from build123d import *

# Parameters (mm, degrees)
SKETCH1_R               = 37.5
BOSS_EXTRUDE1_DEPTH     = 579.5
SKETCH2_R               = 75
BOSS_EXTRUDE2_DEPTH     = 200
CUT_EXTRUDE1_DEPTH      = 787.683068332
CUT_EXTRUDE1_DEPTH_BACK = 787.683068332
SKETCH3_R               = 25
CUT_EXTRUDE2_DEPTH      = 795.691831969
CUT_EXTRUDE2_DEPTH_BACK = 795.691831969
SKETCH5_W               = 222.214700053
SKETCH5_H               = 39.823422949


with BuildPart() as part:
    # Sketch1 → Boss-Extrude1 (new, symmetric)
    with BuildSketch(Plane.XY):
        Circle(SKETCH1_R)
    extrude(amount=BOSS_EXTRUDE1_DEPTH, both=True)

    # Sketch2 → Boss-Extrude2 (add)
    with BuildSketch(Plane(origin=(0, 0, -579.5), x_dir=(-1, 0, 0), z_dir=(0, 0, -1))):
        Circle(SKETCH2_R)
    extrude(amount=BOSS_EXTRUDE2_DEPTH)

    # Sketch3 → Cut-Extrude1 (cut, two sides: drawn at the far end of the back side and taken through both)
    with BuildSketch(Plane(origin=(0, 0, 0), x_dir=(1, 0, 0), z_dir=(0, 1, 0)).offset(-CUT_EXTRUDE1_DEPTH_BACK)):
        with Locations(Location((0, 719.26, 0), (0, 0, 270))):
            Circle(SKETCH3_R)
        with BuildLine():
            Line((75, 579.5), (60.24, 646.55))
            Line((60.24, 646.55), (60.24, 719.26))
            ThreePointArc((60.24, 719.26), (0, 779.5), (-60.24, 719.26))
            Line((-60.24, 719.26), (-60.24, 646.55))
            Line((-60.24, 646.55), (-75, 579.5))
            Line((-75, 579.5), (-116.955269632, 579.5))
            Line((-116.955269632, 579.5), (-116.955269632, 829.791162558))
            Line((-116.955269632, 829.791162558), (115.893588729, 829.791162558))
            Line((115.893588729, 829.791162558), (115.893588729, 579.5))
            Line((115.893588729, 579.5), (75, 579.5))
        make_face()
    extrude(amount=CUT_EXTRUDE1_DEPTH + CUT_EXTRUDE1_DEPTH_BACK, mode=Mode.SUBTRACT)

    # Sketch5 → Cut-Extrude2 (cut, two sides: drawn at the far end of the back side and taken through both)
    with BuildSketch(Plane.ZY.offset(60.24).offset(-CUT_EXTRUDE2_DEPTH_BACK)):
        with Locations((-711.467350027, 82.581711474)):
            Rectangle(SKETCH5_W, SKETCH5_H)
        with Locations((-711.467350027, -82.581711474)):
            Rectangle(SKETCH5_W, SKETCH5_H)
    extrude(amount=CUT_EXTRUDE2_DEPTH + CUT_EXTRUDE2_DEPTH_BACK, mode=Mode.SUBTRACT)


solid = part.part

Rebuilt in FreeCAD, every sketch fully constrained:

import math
import FreeCAD as App
import Part
import Sketcher

V = App.Vector


def add_polygon(sketch, points):
    """Adds a closed chain of lines whose ends are joined by coincident constraints."""
    first, n = sketch.GeometryCount, len(points)
    for a, b in zip(points, points[1:] + points[:1]):
        sketch.addGeometry(Part.LineSegment(App.Vector(*a, 0), App.Vector(*b, 0)), False)
    for i in range(n):
        sketch.addConstraint(Sketcher.Constraint("Coincident", first + i, 2, first + (i + 1) % n, 1))

doc = App.newDocument("Part")
body = doc.addObject("PartDesign::Body", "Body")

# Sketch on XY plane
sketch1 = doc.addObject("Sketcher::SketchObject", "Sketch")
body.addObject(sketch1)
sketch1.AttachmentSupport = (doc.XY_Plane, [""])
sketch1.MapMode = "FlatFace"
sketch1.addGeometry(Part.Circle(V(0, 0, 0), V(0, 0, 1), 38), False)
sketch1.addConstraint([
    Sketcher.Constraint("Coincident", 0, 3, -1, 1),
    Sketcher.Constraint("Diameter", 0, 75.0),
])
pad1 = doc.addObject("PartDesign::Pad", "Pad")
body.addObject(pad1)
pad1.Profile = sketch1
pad1.Length = 1159
pad1.Midplane = True

# Sketch on XY plane
sketch2 = doc.addObject("Sketcher::SketchObject", "Sketch001")
body.addObject(sketch2)
sketch2.AttachmentSupport = (doc.XY_Plane, [""])
sketch2.MapMode = "FlatFace"
sketch2.AttachmentOffset = App.Placement(V(0, 0, -579.5), App.Rotation())
sketch2.addGeometry(Part.Circle(V(0, 0, 0), V(0, 0, 1), 75), False)
sketch2.addConstraint([
    Sketcher.Constraint("Coincident", 0, 3, -1, 1),
    Sketcher.Constraint("Diameter", 0, 150.0),
])
pad2 = doc.addObject("PartDesign::Pad", "Pad001")
body.addObject(pad2)
pad2.Profile = sketch2
pad2.Length = 200
pad2.Reversed = True

# Sketch on XZ plane
sketch3 = doc.addObject("Sketcher::SketchObject", "Sketch002")
body.addObject(sketch3)
sketch3.AttachmentSupport = (doc.XZ_Plane, [""])
sketch3.MapMode = "FlatFace"
sketch3.addGeometry([
    Part.Circle(V(0, -719, 0), V(0, 0, 1), 25),  # 0
    Part.LineSegment(V(60, -647, 0), V(75, -580, 0)),  # 1
    Part.LineSegment(V(75, -580, 0), V(116, -580, 0)),  # 2
    Part.LineSegment(V(116, -580, 0), V(116, -830, 0)),  # 3
    Part.LineSegment(V(116, -830, 0), V(-117, -830, 0)),  # 4
    Part.LineSegment(V(-117, -830, 0), V(-117, -580, 0)),  # 5
    Part.LineSegment(V(-117, -580, 0), V(-75, -580, 0)),  # 6
    Part.LineSegment(V(-75, -580, 0), V(-60, -647, 0)),  # 7
    Part.LineSegment(V(-60, -647, 0), V(-60, -719, 0)),  # 8
    Part.ArcOfCircle(Part.Circle(V(0, -719, 0), V(0, 0, 1), 60), math.radians(180), math.radians(360)),  # 9
    Part.LineSegment(V(60, -719, 0), V(60, -647, 0)),  # 10
], False)
sketch3.addConstraint([
    Sketcher.Constraint("Coincident", 1, 2, 2, 1),
    Sketcher.Constraint("Coincident", 2, 2, 3, 1),
    Sketcher.Constraint("Coincident", 3, 2, 4, 1),
    Sketcher.Constraint("Coincident", 4, 2, 5, 1),
    Sketcher.Constraint("Coincident", 5, 2, 6, 1),
    Sketcher.Constraint("Coincident", 6, 2, 7, 1),
    Sketcher.Constraint("Coincident", 7, 2, 8, 1),
    Sketcher.Constraint("Tangent", 8, 2, 9, 1),
    Sketcher.Constraint("Tangent", 9, 2, 10, 1),
    Sketcher.Constraint("Coincident", 10, 2, 1, 1),
    Sketcher.Constraint("Horizontal", 2),
    Sketcher.Constraint("Vertical", 3),
    Sketcher.Constraint("Horizontal", 4),
    Sketcher.Constraint("Vertical", 5),
    Sketcher.Constraint("Horizontal", 6),
    Sketcher.Constraint("Vertical", 8),
    Sketcher.Constraint("Vertical", 10),
    Sketcher.Constraint("Coincident", 9, 3, 0, 3),
    Sketcher.Constraint("Symmetric", 1, 2, 6, 2, -2),
    Sketcher.Constraint("Symmetric", 7, 2, 10, 2, -2),
    Sketcher.Constraint("Diameter", 0, 50.0),
    Sketcher.Constraint("Radius", 9, 60.24),
    Sketcher.Constraint("DistanceX", -1, 1, 1, 2, 75.0),
    Sketcher.Constraint("DistanceY", 8, 2, 8, 1, 72.71),
    Sketcher.Constraint("DistanceY", 1, 2, -1, 1, 579.5),
    Sketcher.Constraint("DistanceY", 0, 3, -1, 1, 719.26),
    Sketcher.Constraint("DistanceX", 2, 1, 2, 2, 40.893589),
    Sketcher.Constraint("DistanceX", 4, 2, 4, 1, 232.848858),
    Sketcher.Constraint("DistanceY", 3, 2, 3, 1, 250.291163),
])
pocket1 = doc.addObject("PartDesign::Pocket", "Pocket")
body.addObject(pocket1)
pocket1.Profile = sketch3
pocket1.Type = "ThroughAll"
pocket1.Midplane = True

# Sketch on YZ plane
sketch4 = doc.addObject("Sketcher::SketchObject", "Sketch003")
body.addObject(sketch4)
sketch4.AttachmentSupport = (doc.YZ_Plane, [""])
sketch4.MapMode = "FlatFace"
sketch4.AttachmentOffset = App.Placement(V(0, 0, -60.24), App.Rotation())
add_polygon(sketch4, [(102, -823), (63, -823), (63, -600), (102, -600)])  # lines 0-3
add_polygon(sketch4, [(-63, -823), (-102, -823), (-102, -600), (-63, -600)])  # lines 4-7
sketch4.addConstraint([
    Sketcher.Constraint("Horizontal", 0),
    Sketcher.Constraint("Vertical", 1),
    Sketcher.Constraint("Horizontal", 2),
    Sketcher.Constraint("Vertical", 3),
    Sketcher.Constraint("Horizontal", 4),
    Sketcher.Constraint("Vertical", 5),
    Sketcher.Constraint("Horizontal", 6),
    Sketcher.Constraint("Vertical", 7),
    Sketcher.Constraint("Symmetric", 3, 2, 4, 2, -2),
    Sketcher.Constraint("Symmetric", 1, 2, 6, 2, -2),
    Sketcher.Constraint("DistanceX", -1, 1, 0, 2, 62.67),
    Sketcher.Constraint("DistanceY", 1, 2, -1, 1, 600.36),
    Sketcher.Constraint("DistanceY", 1, 1, 1, 2, 222.2147),
    Sketcher.Constraint("DistanceX", 0, 2, 0, 1, 39.823423),
])
pocket2 = doc.addObject("PartDesign::Pocket", "Pocket001")
body.addObject(pocket2)
pocket2.Profile = sketch4
pocket2.Type = "ThroughAll"
pocket2.Midplane = True

doc.recompute()
